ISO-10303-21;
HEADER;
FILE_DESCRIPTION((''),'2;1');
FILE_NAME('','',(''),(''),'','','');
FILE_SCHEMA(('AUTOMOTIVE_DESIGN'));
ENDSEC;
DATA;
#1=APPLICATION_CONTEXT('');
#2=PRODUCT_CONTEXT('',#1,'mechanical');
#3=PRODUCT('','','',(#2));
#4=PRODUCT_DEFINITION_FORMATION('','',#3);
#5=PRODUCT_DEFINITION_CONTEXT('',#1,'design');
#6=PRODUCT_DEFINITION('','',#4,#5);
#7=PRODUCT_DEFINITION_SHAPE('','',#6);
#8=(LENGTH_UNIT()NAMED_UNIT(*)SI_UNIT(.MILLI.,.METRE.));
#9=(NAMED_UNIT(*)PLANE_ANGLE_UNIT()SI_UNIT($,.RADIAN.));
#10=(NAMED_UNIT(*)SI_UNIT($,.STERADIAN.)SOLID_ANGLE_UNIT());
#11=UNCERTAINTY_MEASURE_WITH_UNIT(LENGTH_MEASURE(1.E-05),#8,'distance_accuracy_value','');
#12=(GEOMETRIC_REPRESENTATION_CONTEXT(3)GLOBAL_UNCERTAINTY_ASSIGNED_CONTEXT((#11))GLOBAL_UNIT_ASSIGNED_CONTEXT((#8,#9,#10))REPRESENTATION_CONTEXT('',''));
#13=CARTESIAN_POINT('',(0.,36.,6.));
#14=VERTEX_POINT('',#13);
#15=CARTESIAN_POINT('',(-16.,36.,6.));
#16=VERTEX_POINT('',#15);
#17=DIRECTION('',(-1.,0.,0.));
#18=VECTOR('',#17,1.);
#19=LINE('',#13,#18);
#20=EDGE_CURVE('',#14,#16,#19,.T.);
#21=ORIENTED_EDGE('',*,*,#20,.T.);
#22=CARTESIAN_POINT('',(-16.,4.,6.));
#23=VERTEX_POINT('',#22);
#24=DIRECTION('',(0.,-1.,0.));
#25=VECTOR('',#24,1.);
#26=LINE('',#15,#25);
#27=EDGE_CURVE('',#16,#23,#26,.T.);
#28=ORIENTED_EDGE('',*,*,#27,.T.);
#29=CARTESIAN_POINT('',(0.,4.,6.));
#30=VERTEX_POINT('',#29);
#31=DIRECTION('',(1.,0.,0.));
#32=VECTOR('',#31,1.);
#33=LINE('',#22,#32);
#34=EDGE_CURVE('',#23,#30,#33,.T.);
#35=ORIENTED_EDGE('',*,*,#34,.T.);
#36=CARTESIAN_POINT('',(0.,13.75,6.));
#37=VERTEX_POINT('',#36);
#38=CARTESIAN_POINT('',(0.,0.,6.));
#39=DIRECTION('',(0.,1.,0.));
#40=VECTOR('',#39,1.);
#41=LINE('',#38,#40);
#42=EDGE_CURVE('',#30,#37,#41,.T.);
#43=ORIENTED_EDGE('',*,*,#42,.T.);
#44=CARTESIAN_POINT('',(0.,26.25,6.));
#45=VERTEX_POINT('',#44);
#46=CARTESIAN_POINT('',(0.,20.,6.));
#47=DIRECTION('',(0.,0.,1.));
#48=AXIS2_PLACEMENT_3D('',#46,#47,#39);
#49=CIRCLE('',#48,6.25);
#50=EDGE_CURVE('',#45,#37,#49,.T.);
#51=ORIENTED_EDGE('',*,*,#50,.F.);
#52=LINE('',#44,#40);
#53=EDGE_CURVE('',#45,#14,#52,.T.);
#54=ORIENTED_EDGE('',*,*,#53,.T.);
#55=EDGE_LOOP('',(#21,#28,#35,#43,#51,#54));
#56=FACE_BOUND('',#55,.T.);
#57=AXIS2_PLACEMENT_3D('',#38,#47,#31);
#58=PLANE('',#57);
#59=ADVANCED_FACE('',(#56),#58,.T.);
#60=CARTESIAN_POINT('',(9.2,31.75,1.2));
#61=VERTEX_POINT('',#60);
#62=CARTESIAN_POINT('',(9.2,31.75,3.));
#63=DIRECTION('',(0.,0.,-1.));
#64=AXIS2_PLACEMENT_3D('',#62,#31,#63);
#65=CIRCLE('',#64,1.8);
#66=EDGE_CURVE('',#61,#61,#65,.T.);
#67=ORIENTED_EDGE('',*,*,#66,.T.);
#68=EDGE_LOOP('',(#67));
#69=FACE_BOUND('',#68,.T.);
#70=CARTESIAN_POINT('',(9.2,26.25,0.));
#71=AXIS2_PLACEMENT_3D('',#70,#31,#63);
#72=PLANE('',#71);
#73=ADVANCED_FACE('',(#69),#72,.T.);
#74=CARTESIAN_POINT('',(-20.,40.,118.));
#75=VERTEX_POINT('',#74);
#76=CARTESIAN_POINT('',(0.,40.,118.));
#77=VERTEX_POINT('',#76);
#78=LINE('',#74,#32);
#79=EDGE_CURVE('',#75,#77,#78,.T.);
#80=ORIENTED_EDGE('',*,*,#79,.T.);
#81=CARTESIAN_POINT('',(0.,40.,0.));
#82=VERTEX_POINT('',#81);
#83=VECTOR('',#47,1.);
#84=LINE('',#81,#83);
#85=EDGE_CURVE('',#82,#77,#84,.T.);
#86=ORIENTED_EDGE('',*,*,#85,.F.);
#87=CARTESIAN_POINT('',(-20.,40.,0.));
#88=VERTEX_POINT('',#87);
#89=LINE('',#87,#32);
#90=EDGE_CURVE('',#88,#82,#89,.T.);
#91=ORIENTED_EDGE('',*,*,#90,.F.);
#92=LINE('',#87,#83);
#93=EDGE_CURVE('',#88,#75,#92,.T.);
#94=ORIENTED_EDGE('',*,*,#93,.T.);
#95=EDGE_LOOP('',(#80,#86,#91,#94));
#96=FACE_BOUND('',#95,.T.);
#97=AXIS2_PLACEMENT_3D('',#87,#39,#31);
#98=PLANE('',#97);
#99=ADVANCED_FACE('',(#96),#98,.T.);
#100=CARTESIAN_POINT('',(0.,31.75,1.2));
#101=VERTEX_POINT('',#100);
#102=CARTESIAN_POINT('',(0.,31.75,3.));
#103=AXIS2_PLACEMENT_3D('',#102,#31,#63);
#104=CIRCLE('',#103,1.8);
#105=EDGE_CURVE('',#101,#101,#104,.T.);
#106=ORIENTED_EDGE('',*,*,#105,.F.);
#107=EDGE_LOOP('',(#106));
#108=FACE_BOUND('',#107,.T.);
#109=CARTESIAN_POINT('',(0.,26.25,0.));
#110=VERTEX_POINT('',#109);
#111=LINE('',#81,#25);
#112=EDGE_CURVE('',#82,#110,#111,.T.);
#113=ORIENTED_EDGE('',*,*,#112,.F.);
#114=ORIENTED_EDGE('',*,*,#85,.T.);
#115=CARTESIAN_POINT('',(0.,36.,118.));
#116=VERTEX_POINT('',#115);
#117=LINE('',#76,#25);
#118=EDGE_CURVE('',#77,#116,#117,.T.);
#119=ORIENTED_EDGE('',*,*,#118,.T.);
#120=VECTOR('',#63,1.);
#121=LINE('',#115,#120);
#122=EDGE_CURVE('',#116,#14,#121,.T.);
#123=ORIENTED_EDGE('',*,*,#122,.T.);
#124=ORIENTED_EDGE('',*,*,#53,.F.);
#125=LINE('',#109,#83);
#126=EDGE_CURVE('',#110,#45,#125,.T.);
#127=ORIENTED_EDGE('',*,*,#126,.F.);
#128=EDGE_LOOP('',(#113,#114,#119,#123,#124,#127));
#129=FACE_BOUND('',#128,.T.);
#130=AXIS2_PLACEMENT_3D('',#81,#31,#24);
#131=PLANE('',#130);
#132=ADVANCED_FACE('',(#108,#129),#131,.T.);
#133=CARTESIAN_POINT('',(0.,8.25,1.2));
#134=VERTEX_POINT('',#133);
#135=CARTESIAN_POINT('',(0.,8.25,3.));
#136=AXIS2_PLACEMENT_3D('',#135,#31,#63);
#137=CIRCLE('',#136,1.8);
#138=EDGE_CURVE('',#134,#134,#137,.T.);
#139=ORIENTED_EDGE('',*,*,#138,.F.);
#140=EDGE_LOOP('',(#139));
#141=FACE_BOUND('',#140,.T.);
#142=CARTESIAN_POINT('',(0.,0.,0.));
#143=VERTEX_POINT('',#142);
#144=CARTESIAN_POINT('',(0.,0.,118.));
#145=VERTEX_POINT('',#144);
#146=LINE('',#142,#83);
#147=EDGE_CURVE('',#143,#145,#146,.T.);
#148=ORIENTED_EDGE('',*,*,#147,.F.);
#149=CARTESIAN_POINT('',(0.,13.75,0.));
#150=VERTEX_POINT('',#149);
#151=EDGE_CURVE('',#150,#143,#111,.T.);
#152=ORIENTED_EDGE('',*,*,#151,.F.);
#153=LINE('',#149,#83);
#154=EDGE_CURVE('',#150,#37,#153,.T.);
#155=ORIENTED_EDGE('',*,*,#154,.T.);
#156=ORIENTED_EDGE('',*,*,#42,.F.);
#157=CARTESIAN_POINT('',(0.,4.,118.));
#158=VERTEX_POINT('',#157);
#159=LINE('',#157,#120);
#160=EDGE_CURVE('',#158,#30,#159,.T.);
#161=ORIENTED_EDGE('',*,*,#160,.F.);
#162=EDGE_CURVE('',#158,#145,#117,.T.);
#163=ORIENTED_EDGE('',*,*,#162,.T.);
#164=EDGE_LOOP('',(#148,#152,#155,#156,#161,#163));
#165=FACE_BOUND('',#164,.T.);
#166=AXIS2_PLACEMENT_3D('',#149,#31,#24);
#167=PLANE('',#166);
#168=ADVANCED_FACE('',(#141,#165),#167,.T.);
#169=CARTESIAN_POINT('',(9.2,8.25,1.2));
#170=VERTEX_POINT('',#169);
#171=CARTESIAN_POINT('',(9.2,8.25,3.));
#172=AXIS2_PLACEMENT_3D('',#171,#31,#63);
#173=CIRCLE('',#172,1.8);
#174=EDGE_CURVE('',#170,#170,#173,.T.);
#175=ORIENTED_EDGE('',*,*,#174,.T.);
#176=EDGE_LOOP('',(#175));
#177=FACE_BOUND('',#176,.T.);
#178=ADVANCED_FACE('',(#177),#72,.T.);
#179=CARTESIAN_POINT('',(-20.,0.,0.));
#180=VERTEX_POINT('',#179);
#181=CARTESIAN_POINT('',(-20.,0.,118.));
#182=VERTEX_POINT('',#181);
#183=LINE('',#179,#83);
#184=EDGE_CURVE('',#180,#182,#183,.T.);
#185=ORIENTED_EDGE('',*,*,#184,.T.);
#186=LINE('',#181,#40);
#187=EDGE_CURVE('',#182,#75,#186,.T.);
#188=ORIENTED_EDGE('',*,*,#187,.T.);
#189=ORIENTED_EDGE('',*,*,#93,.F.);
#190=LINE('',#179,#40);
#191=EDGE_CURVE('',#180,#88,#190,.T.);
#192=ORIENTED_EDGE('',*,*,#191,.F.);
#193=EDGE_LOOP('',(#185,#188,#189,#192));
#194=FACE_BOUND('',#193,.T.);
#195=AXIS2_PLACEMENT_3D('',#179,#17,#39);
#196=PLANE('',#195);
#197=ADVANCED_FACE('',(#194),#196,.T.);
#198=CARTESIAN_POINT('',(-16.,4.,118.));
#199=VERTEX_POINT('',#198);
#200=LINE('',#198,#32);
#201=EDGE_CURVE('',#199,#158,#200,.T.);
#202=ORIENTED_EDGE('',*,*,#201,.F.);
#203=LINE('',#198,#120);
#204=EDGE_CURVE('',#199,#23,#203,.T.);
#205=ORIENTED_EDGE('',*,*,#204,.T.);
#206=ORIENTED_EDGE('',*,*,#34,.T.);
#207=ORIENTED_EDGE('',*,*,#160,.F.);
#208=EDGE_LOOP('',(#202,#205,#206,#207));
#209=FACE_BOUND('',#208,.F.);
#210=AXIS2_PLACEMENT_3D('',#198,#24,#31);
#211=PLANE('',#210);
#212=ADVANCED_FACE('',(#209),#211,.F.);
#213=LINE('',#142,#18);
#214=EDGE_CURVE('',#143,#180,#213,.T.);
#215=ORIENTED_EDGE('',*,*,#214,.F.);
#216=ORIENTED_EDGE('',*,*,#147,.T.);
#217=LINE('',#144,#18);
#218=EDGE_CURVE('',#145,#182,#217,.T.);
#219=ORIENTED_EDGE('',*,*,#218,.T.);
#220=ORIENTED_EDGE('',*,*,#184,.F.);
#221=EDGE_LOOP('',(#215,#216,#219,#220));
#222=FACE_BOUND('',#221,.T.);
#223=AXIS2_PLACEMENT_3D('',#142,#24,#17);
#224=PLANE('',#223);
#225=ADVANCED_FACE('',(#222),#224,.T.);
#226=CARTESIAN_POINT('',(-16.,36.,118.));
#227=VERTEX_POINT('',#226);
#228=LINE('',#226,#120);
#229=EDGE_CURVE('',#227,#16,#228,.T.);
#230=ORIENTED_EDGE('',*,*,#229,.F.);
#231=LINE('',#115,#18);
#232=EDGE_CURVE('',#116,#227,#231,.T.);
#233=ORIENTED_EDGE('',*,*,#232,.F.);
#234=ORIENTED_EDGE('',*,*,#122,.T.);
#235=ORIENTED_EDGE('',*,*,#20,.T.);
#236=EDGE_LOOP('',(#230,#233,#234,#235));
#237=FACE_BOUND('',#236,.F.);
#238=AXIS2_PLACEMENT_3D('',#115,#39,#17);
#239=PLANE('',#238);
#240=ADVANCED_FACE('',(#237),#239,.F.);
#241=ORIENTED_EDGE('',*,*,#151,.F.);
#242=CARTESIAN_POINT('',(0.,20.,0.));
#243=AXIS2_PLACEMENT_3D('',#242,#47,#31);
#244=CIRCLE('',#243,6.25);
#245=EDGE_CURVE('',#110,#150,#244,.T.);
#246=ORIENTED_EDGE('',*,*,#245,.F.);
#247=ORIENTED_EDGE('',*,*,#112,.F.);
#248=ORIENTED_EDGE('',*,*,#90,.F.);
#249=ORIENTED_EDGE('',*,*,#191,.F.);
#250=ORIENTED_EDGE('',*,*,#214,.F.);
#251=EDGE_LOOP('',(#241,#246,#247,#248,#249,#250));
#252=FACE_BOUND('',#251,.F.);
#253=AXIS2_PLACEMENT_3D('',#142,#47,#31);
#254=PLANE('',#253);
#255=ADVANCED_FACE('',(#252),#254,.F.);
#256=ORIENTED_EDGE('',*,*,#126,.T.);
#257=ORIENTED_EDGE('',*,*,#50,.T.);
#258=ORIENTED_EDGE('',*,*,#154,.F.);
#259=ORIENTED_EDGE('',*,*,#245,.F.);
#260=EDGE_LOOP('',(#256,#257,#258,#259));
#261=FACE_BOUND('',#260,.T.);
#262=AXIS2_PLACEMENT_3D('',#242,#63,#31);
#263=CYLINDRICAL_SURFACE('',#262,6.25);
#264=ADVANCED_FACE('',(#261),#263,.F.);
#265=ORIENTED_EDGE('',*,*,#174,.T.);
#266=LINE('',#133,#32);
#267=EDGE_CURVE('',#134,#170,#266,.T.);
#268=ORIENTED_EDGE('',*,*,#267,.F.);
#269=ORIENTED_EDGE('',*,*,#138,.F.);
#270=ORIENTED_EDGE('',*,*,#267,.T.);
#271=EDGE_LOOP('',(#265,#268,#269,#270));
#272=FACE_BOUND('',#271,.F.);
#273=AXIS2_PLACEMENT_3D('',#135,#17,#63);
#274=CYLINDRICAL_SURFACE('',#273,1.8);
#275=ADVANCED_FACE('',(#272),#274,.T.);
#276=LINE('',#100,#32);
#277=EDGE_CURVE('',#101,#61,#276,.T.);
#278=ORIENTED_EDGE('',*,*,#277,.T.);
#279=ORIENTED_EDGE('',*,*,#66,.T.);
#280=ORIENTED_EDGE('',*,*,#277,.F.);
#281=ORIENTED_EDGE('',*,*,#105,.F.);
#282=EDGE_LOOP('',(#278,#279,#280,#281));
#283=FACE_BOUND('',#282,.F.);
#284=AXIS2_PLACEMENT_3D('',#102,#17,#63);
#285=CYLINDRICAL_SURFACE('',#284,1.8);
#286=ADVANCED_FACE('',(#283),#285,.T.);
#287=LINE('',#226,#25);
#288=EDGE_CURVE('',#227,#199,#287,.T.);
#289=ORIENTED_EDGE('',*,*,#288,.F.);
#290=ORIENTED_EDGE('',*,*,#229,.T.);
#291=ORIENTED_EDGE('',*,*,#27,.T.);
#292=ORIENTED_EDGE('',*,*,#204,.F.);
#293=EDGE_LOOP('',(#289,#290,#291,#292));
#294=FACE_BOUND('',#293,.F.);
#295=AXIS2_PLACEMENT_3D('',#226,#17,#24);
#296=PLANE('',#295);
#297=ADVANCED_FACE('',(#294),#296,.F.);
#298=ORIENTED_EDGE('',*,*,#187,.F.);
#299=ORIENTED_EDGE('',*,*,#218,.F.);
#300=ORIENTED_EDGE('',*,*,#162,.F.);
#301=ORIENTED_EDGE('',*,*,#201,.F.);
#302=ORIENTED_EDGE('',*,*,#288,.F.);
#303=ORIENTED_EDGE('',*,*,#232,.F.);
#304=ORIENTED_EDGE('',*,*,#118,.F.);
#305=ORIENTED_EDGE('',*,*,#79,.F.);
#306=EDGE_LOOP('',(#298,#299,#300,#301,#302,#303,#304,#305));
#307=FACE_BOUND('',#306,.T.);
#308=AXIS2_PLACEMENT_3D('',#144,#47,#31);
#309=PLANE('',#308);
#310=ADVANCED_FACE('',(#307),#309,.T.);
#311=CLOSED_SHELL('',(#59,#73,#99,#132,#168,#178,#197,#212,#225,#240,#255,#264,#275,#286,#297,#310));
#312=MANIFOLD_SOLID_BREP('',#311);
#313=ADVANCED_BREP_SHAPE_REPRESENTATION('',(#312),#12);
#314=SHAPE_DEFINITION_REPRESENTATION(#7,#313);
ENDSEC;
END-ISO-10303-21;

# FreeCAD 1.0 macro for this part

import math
import FreeCAD as App
import Part
import Sketcher

V = App.Vector

doc = App.newDocument("Part")
body = doc.addObject("PartDesign::Body", "Body")

# Sketch on XY plane
sketch1 = body.newObject("Sketcher::SketchObject", "Sketch")
sketch1.AttachmentSupport = (doc.getObject("XY_Plane"), [""])
sketch1.MapMode = "FlatFace"
sketch1.addGeometry([
    Part.LineSegment(V(0, 40, 0), V(-20, 40, 0)),  # 0
    Part.LineSegment(V(-20, 40, 0), V(-20, 0, 0)),  # 1
    Part.LineSegment(V(-20, 0, 0), V(0, 0, 0)),  # 2
    Part.LineSegment(V(0, 0, 0), V(0, 14, 0)),  # 3
    Part.ArcOfCircle(Part.Circle(V(0, 20, 0), V(0, 0, 1), 6), math.radians(90), math.radians(270)),  # 4
    Part.LineSegment(V(0, 26, 0), V(0, 40, 0)),  # 5
], False)
sketch1.addConstraint([
    Sketcher.Constraint("Coincident", 0, 2, 1, 1),
    Sketcher.Constraint("Coincident", 1, 2, 2, 1),
    Sketcher.Constraint("Coincident", 2, 2, 3, 1),
    Sketcher.Constraint("Coincident", 3, 2, 4, 2),
    Sketcher.Constraint("Coincident", 4, 1, 5, 1),
    Sketcher.Constraint("Coincident", 5, 2, 0, 1),
    Sketcher.Constraint("Horizontal", 0),
    Sketcher.Constraint("Vertical", 1),
    Sketcher.Constraint("Horizontal", 2),
    Sketcher.Constraint("Vertical", 3),
    Sketcher.Constraint("Vertical", 5),
    Sketcher.Constraint("Coincident", 2, 2, -1, 1),
    Sketcher.Constraint("PointOnObject", 4, 3, -2),
    Sketcher.Constraint("PointOnObject", 4, 1, -2),
    Sketcher.Constraint("Equal", 3, 5),
    Sketcher.Constraint("DistanceX", 0, 2, 0, 1, 20.0),
    Sketcher.Constraint("DistanceY", 1, 2, 1, 1, 40.0),
    Sketcher.Constraint("Radius", 4, 6.25),
])
pad1 = body.newObject("PartDesign::Pad", "Pad")
pad1.Profile = sketch1
pad1.Length = 118

# Sketch on XY plane
sketch2 = body.newObject("Sketcher::SketchObject", "Sketch001")
sketch2.AttachmentSupport = (doc.getObject("XY_Plane"), [""])
sketch2.MapMode = "FlatFace"
sketch2.AttachmentOffset = App.Placement(V(0, 0, 118), App.Rotation())
sketch2.addGeometry([
    Part.ArcOfCircle(Part.Circle(V(0, 20, 0), V(0, 0, 1), 6), math.radians(90), math.radians(270)),  # 0
    Part.LineSegment(V(0, 26, 0), V(0, 36, 0)),  # 1
    Part.LineSegment(V(0, 36, 0), V(-16, 36, 0)),  # 2
    Part.LineSegment(V(-16, 36, 0), V(-16, 4, 0)),  # 3
    Part.LineSegment(V(-16, 4, 0), V(0, 4, 0)),  # 4
    Part.LineSegment(V(0, 4, 0), V(0, 14, 0)),  # 5
], False)
sketch2.addConstraint([
    Sketcher.Constraint("Coincident", 0, 1, 1, 1),
    Sketcher.Constraint("Coincident", 1, 2, 2, 1),
    Sketcher.Constraint("Coincident", 2, 2, 3, 1),
    Sketcher.Constraint("Coincident", 3, 2, 4, 1),
    Sketcher.Constraint("Coincident", 4, 2, 5, 1),
    Sketcher.Constraint("Coincident", 5, 2, 0, 2),
    Sketcher.Constraint("Vertical", 1),
    Sketcher.Constraint("Horizontal", 2),
    Sketcher.Constraint("Vertical", 3),
    Sketcher.Constraint("Horizontal", 4),
    Sketcher.Constraint("Vertical", 5),
    Sketcher.Constraint("PointOnObject", 0, 3, -2),
    Sketcher.Constraint("PointOnObject", 0, 1, -2),
    Sketcher.Constraint("PointOnObject", 4, 2, -2),
    Sketcher.Constraint("Equal", 1, 5),
    Sketcher.Constraint("DistanceX", 2, 2, 2, 1, 16.0),
    Sketcher.Constraint("DistanceY", 3, 2, 3, 1, 32.0),
    Sketcher.Constraint("DistanceY", -1, 1, 3, 2, 4.0),
    Sketcher.Constraint("Radius", 0, 6.25),
])
pocket1 = body.newObject("PartDesign::Pocket", "Pocket")
pocket1.Profile = sketch2
pocket1.Length = 112

# Sketch on YZ plane
sketch3 = body.newObject("Sketcher::SketchObject", "Sketch002")
sketch3.AttachmentSupport = (doc.getObject("YZ_Plane"), [""])
sketch3.MapMode = "FlatFace"
sketch3.addGeometry([
    Part.Circle(V(31.8, 3, 0), V(0, 0, 1), 1.8),
    Part.Circle(V(8.2, 3, 0), V(0, 0, 1), 1.8),
], False)
sketch3.addConstraint([
    Sketcher.Constraint("Equal", 0, 1),
    Sketcher.Constraint("Horizontal", 0, 3, 1, 3),
    Sketcher.Constraint("Diameter", 0, 3.6),
    Sketcher.Constraint("DistanceY", -1, 1, 0, 3, 3.0),
    Sketcher.Constraint("DistanceX", 1, 3, 0, 3, 23.5),
    Sketcher.Constraint("DistanceX", -1, 1, 0, 3, 31.75),
])
pad2 = body.newObject("PartDesign::Pad", "Pad001")
pad2.Profile = sketch3
pad2.Length = 9.2

doc.recompute()
